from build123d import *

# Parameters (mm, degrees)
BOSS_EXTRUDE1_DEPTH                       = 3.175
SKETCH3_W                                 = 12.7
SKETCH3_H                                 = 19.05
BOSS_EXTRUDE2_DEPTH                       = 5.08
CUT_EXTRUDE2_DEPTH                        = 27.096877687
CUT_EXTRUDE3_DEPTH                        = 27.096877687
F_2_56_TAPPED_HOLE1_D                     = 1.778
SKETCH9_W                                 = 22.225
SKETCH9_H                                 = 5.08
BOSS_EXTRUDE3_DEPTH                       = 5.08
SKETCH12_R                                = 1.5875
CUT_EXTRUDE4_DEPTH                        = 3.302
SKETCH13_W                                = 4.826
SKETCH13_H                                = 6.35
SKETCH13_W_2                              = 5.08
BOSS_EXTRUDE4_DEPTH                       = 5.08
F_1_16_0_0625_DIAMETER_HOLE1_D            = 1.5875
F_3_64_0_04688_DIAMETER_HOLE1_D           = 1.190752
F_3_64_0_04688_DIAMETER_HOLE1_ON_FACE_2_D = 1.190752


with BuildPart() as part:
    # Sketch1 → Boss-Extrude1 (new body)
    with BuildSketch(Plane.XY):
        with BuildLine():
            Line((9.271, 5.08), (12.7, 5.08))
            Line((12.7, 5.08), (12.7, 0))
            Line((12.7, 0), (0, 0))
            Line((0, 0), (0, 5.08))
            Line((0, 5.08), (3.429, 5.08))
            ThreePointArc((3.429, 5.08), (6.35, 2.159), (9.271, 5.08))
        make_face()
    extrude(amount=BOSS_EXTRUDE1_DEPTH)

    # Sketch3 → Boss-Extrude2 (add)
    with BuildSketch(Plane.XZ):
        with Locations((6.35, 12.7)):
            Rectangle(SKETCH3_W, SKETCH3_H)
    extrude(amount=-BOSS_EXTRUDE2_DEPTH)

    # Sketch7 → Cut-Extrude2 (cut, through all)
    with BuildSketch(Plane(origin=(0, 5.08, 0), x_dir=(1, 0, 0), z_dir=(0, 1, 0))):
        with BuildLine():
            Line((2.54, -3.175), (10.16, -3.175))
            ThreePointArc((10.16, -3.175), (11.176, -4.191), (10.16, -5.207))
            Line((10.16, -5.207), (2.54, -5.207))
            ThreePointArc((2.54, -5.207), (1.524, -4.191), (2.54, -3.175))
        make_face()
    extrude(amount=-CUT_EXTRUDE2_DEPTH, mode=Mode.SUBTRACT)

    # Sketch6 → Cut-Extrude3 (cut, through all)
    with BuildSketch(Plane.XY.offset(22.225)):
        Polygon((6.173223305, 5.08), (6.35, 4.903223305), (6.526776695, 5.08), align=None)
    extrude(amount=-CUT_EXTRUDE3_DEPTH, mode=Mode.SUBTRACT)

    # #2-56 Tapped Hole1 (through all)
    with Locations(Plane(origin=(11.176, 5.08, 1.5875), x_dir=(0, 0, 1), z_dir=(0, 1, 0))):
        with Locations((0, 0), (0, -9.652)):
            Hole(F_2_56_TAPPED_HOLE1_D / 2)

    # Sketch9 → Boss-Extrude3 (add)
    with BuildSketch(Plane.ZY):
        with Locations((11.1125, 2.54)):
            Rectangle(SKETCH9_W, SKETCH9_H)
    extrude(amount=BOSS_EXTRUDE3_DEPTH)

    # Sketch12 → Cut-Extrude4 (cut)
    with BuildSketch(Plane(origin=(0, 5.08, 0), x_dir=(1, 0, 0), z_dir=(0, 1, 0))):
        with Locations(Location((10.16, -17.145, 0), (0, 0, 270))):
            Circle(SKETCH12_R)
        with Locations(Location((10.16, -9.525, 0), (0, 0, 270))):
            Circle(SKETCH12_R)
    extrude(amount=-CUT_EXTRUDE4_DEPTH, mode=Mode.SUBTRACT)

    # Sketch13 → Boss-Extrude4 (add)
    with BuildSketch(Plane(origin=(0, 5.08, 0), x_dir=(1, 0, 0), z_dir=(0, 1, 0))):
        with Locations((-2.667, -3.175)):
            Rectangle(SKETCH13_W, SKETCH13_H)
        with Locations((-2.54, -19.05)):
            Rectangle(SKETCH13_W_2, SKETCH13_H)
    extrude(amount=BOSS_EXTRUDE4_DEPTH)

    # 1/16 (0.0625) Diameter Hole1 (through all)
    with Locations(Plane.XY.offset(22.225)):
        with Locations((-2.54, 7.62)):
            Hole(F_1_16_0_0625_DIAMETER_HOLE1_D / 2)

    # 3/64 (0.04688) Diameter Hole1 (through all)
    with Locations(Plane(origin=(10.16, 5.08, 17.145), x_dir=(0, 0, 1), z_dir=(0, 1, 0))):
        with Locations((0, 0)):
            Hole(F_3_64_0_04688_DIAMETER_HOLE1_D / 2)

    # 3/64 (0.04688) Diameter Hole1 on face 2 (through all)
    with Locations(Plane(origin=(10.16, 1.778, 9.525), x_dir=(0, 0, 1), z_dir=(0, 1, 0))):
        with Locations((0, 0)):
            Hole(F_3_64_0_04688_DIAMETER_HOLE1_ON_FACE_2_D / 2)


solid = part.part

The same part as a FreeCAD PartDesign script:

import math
import FreeCAD as App
import Part
import Sketcher

V = App.Vector
Q = App.Units.Quantity

doc = App.newDocument("Part")
params = doc.addObject("Spreadsheet::Sheet", "Params")
for row, (alias, value) in enumerate([
    ("sketch1_width", "0.5 in"),
    ("sketch1_height", "0.2 in"),
    ("sketch1_radius", "0.115 in"),
    ("pad1_length", "0.125 in"),
    ("sketch2_width", "0.5 in"),
    ("sketch2_height", "0.75 in"),
    ("pad2_length", "0.2 in"),
    ("sketch3_radius", "0.04 in"),
    ("sketch3_width", "0.3 in"),
    ("sketch5_diameter", "0.07 in"),
    ("hole_diameter", "0.07 in"),
    ("sketch6_width", "0.2 in"),
    ("sketch6_height", "0.875 in"),
    ("pad3_length", "0.2 in"),
    ("sketch7_diameter", "0.125 in"),
    ("pocket3_length", "0.13 in"),
    ("sketch8_width", "0.2 in"),
    ("sketch8_width2", "0.19 in"),
    ("sketch8_height", "0.25 in"),
    ("pad4_length", "0.2 in"),
    ("sketch9_diameter", "0.0625 in"),
    ("hole2_diameter", "0.0625 in"),
    ("hole3_diameter", "1.190752 mm"),
    ("hole4_diameter", "1.190752 mm"),
], start=1):
    params.set(f"A{row}", alias)
    params.set(f"B{row}", "=" + value)
    params.setAlias(f"B{row}", alias)

body = doc.addObject("PartDesign::Body", "Body")

# Sketch on XY plane
sketch1 = body.newObject("Sketcher::SketchObject", "Sketch")
sketch1.AttachmentSupport = (doc.getObject("XY_Plane"), [""])
sketch1.MapMode = "FlatFace"
sketch1.addGeometry(Part.LineSegment(V(12.7, 5.1, 0), V(9.3, 5.1, 0)), False)
sketch1.addGeometry(Part.ArcOfCircle(Part.Circle(V(6.3, 5.1, 0), V(0, 0, 1), 2.9), math.radians(180), math.radians(360)), False)
sketch1.addGeometry(Part.LineSegment(V(3.4, 5.1, 0), V(0, 5.1, 0)), False)
sketch1.addGeometry(Part.LineSegment(V(0, 5.1, 0), V(0, 0, 0)), False)
sketch1.addGeometry(Part.LineSegment(V(0, 0, 0), V(12.7, 0, 0)), False)
sketch1.addGeometry(Part.LineSegment(V(12.7, 0, 0), V(12.7, 5.1, 0)), False)
sketch1.addConstraint(Sketcher.Constraint("Coincident", 0, 2, 1, 2))
sketch1.addConstraint(Sketcher.Constraint("Coincident", 1, 1, 2, 1))
sketch1.addConstraint(Sketcher.Constraint("Coincident", 2, 2, 3, 1))
sketch1.addConstraint(Sketcher.Constraint("Coincident", 3, 2, 4, 1))
sketch1.addConstraint(Sketcher.Constraint("Coincident", 4, 2, 5, 1))
sketch1.addConstraint(Sketcher.Constraint("Coincident", 5, 2, 0, 1))
sketch1.addConstraint(Sketcher.Constraint("Horizontal", 0))
sketch1.addConstraint(Sketcher.Constraint("Horizontal", 2))
sketch1.addConstraint(Sketcher.Constraint("Vertical", 3))
sketch1.addConstraint(Sketcher.Constraint("Horizontal", 4))
sketch1.addConstraint(Sketcher.Constraint("Vertical", 5))
sketch1.addConstraint(Sketcher.Constraint("Coincident", 3, 2, -1, 1))
sketch1.addConstraint(Sketcher.Constraint("Horizontal", 1, 3, 0, 2))
sketch1.addConstraint(Sketcher.Constraint("Horizontal", 0, 2, 1, 1))
sketch1.addConstraint(Sketcher.Constraint("Equal", 0, 2))
sketch1.addConstraint(Sketcher.Constraint("DistanceX", 4, 1, 4, 2, Q("0.5 in")))
sketch1.addConstraint(Sketcher.Constraint("DistanceY", 3, 2, 3, 1, Q("0.2 in")))
sketch1.addConstraint(Sketcher.Constraint("Radius", 1, Q("0.115 in")))
sketch1.setExpression("Constraints[15]", "Params.sketch1_width")
sketch1.setExpression("Constraints[16]", "Params.sketch1_height")
sketch1.setExpression("Constraints[17]", "Params.sketch1_radius")
pad1 = body.newObject("PartDesign::Pad", "Pad")
pad1.Profile = sketch1
pad1.setExpression("Length", "Params.pad1_length")

# Sketch on XZ plane
sketch2 = body.newObject("Sketcher::SketchObject", "Sketch001")
sketch2.AttachmentSupport = (doc.getObject("XZ_Plane"), [""])
sketch2.MapMode = "FlatFace"
sketch2.addGeometry(Part.LineSegment(V(0, 22, 0), V(0, 3, 0)), False)
sketch2.addGeometry(Part.LineSegment(V(0, 3, 0), V(13, 3, 0)), False)
sketch2.addGeometry(Part.LineSegment(V(13, 3, 0), V(13, 22, 0)), False)
sketch2.addGeometry(Part.LineSegment(V(13, 22, 0), V(0, 22, 0)), False)
sketch2.addConstraint(Sketcher.Constraint("Coincident", 0, 2, 1, 1))
sketch2.addConstraint(Sketcher.Constraint("Coincident", 1, 2, 2, 1))
sketch2.addConstraint(Sketcher.Constraint("Coincident", 2, 2, 3, 1))
sketch2.addConstraint(Sketcher.Constraint("Coincident", 3, 2, 0, 1))
sketch2.addConstraint(Sketcher.Constraint("Vertical", 0))
sketch2.addConstraint(Sketcher.Constraint("Horizontal", 1))
sketch2.addConstraint(Sketcher.Constraint("Vertical", 2))
sketch2.addConstraint(Sketcher.Constraint("Horizontal", 3))
sketch2.addConstraint(Sketcher.Constraint("PointOnObject", 0, 2, -2))
sketch2.addConstraint(Sketcher.Constraint("DistanceX", 1, 1, 1, 2, Q("0.5 in")))
sketch2.addConstraint(Sketcher.Constraint("DistanceY", 0, 2, 0, 1, Q("0.75 in")))
sketch2.addConstraint(Sketcher.Constraint("DistanceY", -1, 1, 0, 2, Q("0.125 in")))
sketch2.setExpression("Constraints[9]", "Params.sketch2_width")
sketch2.setExpression("Constraints[10]", "Params.sketch2_height")
pad2 = body.newObject("PartDesign::Pad", "Pad001")
pad2.Profile = sketch2
pad2.setExpression("Length", "Params.pad2_length")
pad2.Reversed = True

# Sketch on XZ plane
sketch3 = body.newObject("Sketcher::SketchObject", "Sketch002")
sketch3.AttachmentSupport = (doc.getObject("XZ_Plane"), [""])
sketch3.MapMode = "FlatFace"
sketch3.AttachmentOffset = App.Placement(V(0, 0, -0.2 * 25.4), App.Rotation())
sketch3.addGeometry(Part.LineSegment(V(10.2, 3.2, 0), V(2.5, 3.2, 0)), False)
sketch3.addGeometry(Part.ArcOfCircle(Part.Circle(V(2.5, 4.2, 0), V(0, 0, 1), 1), math.radians(90), math.radians(270)), False)
sketch3.addGeometry(Part.LineSegment(V(2.5, 5.2, 0), V(10.2, 5.2, 0)), False)
sketch3.addGeometry(Part.ArcOfCircle(Part.Circle(V(10.2, 4.2, 0), V(0, 0, 1), 1), math.radians(-90), math.radians(90)), False)
sketch3.addConstraint(Sketcher.Constraint("Tangent", 0, 2, 1, 2))
sketch3.addConstraint(Sketcher.Constraint("Tangent", 1, 1, 2, 1))
sketch3.addConstraint(Sketcher.Constraint("Tangent", 2, 2, 3, 2))
sketch3.addConstraint(Sketcher.Constraint("Tangent", 3, 1, 0, 1))
sketch3.addConstraint(Sketcher.Constraint("Horizontal", 0))
sketch3.addConstraint(Sketcher.Constraint("Horizontal", 2))
sketch3.addConstraint(Sketcher.Constraint("Radius", 1, Q("0.04 in")))
sketch3.addConstraint(Sketcher.Constraint("DistanceX", 0, 2, 0, 1, Q("0.3 in")))
sketch3.addConstraint(Sketcher.Constraint("DistanceX", -1, 1, 1, 3, Q("0.1 in")))
sketch3.addConstraint(Sketcher.Constraint("DistanceY", -1, 1, 1, 3, Q("0.165 in")))
sketch3.setExpression("Constraints[6]", "Params.sketch3_radius")
sketch3.setExpression("Constraints[7]", "Params.sketch3_width")
pocket1 = body.newObject("PartDesign::Pocket", "Pocket")
pocket1.Profile = sketch3
pocket1.Type = "ThroughAll"
pocket1.Reversed = True

# Sketch on XY plane
sketch4 = body.newObject("Sketcher::SketchObject", "Sketch003")
sketch4.AttachmentSupport = (doc.getObject("XY_Plane"), [""])
sketch4.MapMode = "FlatFace"
sketch4.AttachmentOffset = App.Placement(V(0, 0, 0.875 * 25.4), App.Rotation())
sketch4.addGeometry(Part.LineSegment(V(6.17, 5.08, 0), V(6.35, 4.9, 0)), False)
sketch4.addGeometry(Part.LineSegment(V(6.35, 4.9, 0), V(6.53, 5.08, 0)), False)
sketch4.addGeometry(Part.LineSegment(V(6.53, 5.08, 0), V(6.17, 5.08, 0)), False)
sketch4.addConstraint(Sketcher.Constraint("Coincident", 0, 2, 1, 1))
sketch4.addConstraint(Sketcher.Constraint("Coincident", 1, 2, 2, 1))
sketch4.addConstraint(Sketcher.Constraint("Coincident", 2, 2, 0, 1))
sketch4.addConstraint(Sketcher.Constraint("Horizontal", 2))
sketch4.addConstraint(Sketcher.Constraint("Perpendicular", 0, 1))
sketch4.addConstraint(Sketcher.Constraint("Equal", 0, 1))
sketch4.addConstraint(Sketcher.Constraint("DistanceY", -1, 1, 1, 2, Q("0.2 in")))
sketch4.addConstraint(Sketcher.Constraint("DistanceX", -1, 1, 0, 2, Q("0.25 in")))
sketch4.addConstraint(Sketcher.Constraint("Distance", 0, Q("0.25 mm")))
pocket2 = body.newObject("PartDesign::Pocket", "Pocket001")
pocket2.Profile = sketch4
pocket2.Type = "ThroughAll"

# Sketch on XZ plane
sketch5 = body.newObject("Sketcher::SketchObject", "Sketch004")
sketch5.AttachmentSupport = (doc.getObject("XZ_Plane"), [""])
sketch5.MapMode = "FlatFace"
sketch5.AttachmentOffset = App.Placement(V(0, 0, -0.2 * 25.4), App.Rotation())
sketch5.addGeometry(Part.Circle(V(11.2, 1.6, 0), V(0, 0, 1), 0.9), False)
sketch5.addGeometry(Part.Circle(V(1.5, 1.6, 0), V(0, 0, 1), 0.9), False)
sketch5.addConstraint(Sketcher.Constraint("Equal", 0, 1))
sketch5.addConstraint(Sketcher.Constraint("Horizontal", 0, 3, 1, 3))
sketch5.addConstraint(Sketcher.Constraint("Diameter", 0, Q("0.07 in")))
sketch5.addConstraint(Sketcher.Constraint("DistanceX", -1, 1, 0, 3, Q("0.44 in")))
sketch5.addConstraint(Sketcher.Constraint("DistanceX", -1, 1, 1, 3, Q("0.06 in")))
sketch5.addConstraint(Sketcher.Constraint("DistanceY", -1, 1, 0, 3, Q("0.0625 in")))
sketch5.setExpression("Constraints[2]", "Params.sketch5_diameter")
doc.recompute()
hole = body.newObject("PartDesign::Hole", "Hole")
hole.Profile = sketch5
hole.ThreadType = "None"
hole.setExpression("Diameter", "Params.hole_diameter")
hole.DepthType = "ThroughAll"
hole.Reversed = True

# Sketch on YZ plane
sketch6 = body.newObject("Sketcher::SketchObject", "Sketch005")
sketch6.AttachmentSupport = (doc.getObject("YZ_Plane"), [""])
sketch6.MapMode = "FlatFace"
sketch6.addGeometry(Part.LineSegment(V(5, 0, 0), V(0, 0, 0)), False)
sketch6.addGeometry(Part.LineSegment(V(0, 0, 0), V(0, 22, 0)), False)
sketch6.addGeometry(Part.LineSegment(V(0, 22, 0), V(5, 22, 0)), False)
sketch6.addGeometry(Part.LineSegment(V(5, 22, 0), V(5, 0, 0)), False)
sketch6.addConstraint(Sketcher.Constraint("Coincident", 0, 2, 1, 1))
sketch6.addConstraint(Sketcher.Constraint("Coincident", 1, 2, 2, 1))
sketch6.addConstraint(Sketcher.Constraint("Coincident", 2, 2, 3, 1))
sketch6.addConstraint(Sketcher.Constraint("Coincident", 3, 2, 0, 1))
sketch6.addConstraint(Sketcher.Constraint("Horizontal", 0))
sketch6.addConstraint(Sketcher.Constraint("Vertical", 1))
sketch6.addConstraint(Sketcher.Constraint("Horizontal", 2))
sketch6.addConstraint(Sketcher.Constraint("Vertical", 3))
sketch6.addConstraint(Sketcher.Constraint("Coincident", 0, 2, -1, 1))
sketch6.addConstraint(Sketcher.Constraint("DistanceX", 0, 2, 0, 1, Q("0.2 in")))
sketch6.addConstraint(Sketcher.Constraint("DistanceY", 1, 1, 1, 2, Q("0.875 in")))
sketch6.setExpression("Constraints[9]", "Params.sketch6_width")
sketch6.setExpression("Constraints[10]", "Params.sketch6_height")
pad3 = body.newObject("PartDesign::Pad", "Pad002")
pad3.Profile = sketch6
pad3.setExpression("Length", "Params.pad3_length")
pad3.Reversed = True

# Sketch on XZ plane
sketch7 = body.newObject("Sketcher::SketchObject", "Sketch006")
sketch7.AttachmentSupport = (doc.getObject("XZ_Plane"), [""])
sketch7.MapMode = "FlatFace"
sketch7.AttachmentOffset = App.Placement(V(0, 0, -0.2 * 25.4), App.Rotation())
sketch7.addGeometry(Part.Circle(V(10.2, 17.1, 0), V(0, 0, 1), 1.6), False)
sketch7.addGeometry(Part.Circle(V(10.2, 9.5, 0), V(0, 0, 1), 1.6), False)
sketch7.addConstraint(Sketcher.Constraint("Equal", 0, 1))
sketch7.addConstraint(Sketcher.Constraint("Vertical", 0, 3, 1, 3))
sketch7.addConstraint(Sketcher.Constraint("Diameter", 0, Q("0.125 in")))
sketch7.addConstraint(Sketcher.Constraint("DistanceX", -1, 1, 0, 3, Q("0.4 in")))
sketch7.addConstraint(Sketcher.Constraint("DistanceY", 1, 3, 0, 3, Q("0.3 in")))
sketch7.addConstraint(Sketcher.Constraint("DistanceY", -1, 1, 0, 3, Q("0.675 in")))
sketch7.setExpression("Constraints[2]", "Params.sketch7_diameter")
pocket3 = body.newObject("PartDesign::Pocket", "Pocket002")
pocket3.Profile = sketch7
pocket3.setExpression("Length", "Params.pocket3_length")
pocket3.Reversed = True

# Sketch on XZ plane
sketch8 = body.newObject("Sketcher::SketchObject", "Sketch007")
sketch8.AttachmentSupport = (doc.getObject("XZ_Plane"), [""])
sketch8.MapMode = "FlatFace"
sketch8.AttachmentOffset = App.Placement(V(0, 0, -0.2 * 25.4), App.Rotation())
sketch8.addGeometry(Part.LineSegment(V(-5.1, 0, 0), V(-5.1, 6.3, 0)), False)
sketch8.addGeometry(Part.LineSegment(V(-5.1, 6.3, 0), V(-0.3, 6.3, 0)), False)
sketch8.addGeometry(Part.LineSegment(V(-0.3, 6.3, 0), V(-0.3, 0, 0)), False)
sketch8.addGeometry(Part.LineSegment(V(-0.3, 0, 0), V(-5.1, 0, 0)), False)
sketch8.addGeometry(Part.LineSegment(V(-5.1, 15.9, 0), V(-5.1, 22.2, 0)), False)
sketch8.addGeometry(Part.LineSegment(V(-5.1, 22.2, 0), V(0, 22.2, 0)), False)
sketch8.addGeometry(Part.LineSegment(V(0, 22.2, 0), V(0, 15.9, 0)), False)
sketch8.addGeometry(Part.LineSegment(V(0, 15.9, 0), V(-5.1, 15.9, 0)), False)
sketch8.addConstraint(Sketcher.Constraint("Coincident", 0, 2, 1, 1))
sketch8.addConstraint(Sketcher.Constraint("Coincident", 1, 2, 2, 1))
sketch8.addConstraint(Sketcher.Constraint("Coincident", 2, 2, 3, 1))
sketch8.addConstraint(Sketcher.Constraint("Coincident", 3, 2, 0, 1))
sketch8.addConstraint(Sketcher.Constraint("Coincident", 4, 2, 5, 1))
sketch8.addConstraint(Sketcher.Constraint("Coincident", 5, 2, 6, 1))
sketch8.addConstraint(Sketcher.Constraint("Coincident", 6, 2, 7, 1))
sketch8.addConstraint(Sketcher.Constraint("Coincident", 7, 2, 4, 1))
sketch8.addConstraint(Sketcher.Constraint("Vertical", 0))
sketch8.addConstraint(Sketcher.Constraint("Horizontal", 1))
sketch8.addConstraint(Sketcher.Constraint("Vertical", 2))
sketch8.addConstraint(Sketcher.Constraint("Horizontal", 3))
sketch8.addConstraint(Sketcher.Constraint("Vertical", 4))
sketch8.addConstraint(Sketcher.Constraint("Horizontal", 5))
sketch8.addConstraint(Sketcher.Constraint("Vertical", 6))
sketch8.addConstraint(Sketcher.Constraint("Horizontal", 7))
sketch8.addConstraint(Sketcher.Constraint("PointOnObject", 2, 2, -1))
sketch8.addConstraint(Sketcher.Constraint("PointOnObject", 5, 2, -2))
sketch8.addConstraint(Sketcher.Constraint("Vertical", 3, 2, 4, 2))
sketch8.addConstraint(Sketcher.Constraint("Equal", 2, 4))
sketch8.addConstraint(Sketcher.Constraint("DistanceX", 5, 1, 5, 2, Q("0.2 in")))
sketch8.addConstraint(Sketcher.Constraint("DistanceX", 1, 1, 1, 2, Q("0.19 in")))
sketch8.addConstraint(Sketcher.Constraint("DistanceY", 0, 1, 0, 2, Q("0.25 in")))
sketch8.addConstraint(Sketcher.Constraint("DistanceY", -1, 1, 4, 2, Q("0.875 in")))
sketch8.setExpression("Constraints[20]", "Params.sketch8_width")
sketch8.setExpression("Constraints[21]", "Params.sketch8_width2")
sketch8.setExpression("Constraints[22]", "Params.sketch8_height")
pad4 = body.newObject("PartDesign::Pad", "Pad003")
pad4.Profile = sketch8
pad4.setExpression("Length", "Params.pad4_length")
pad4.Reversed = True

# Sketch on XY plane
sketch9 = body.newObject("Sketcher::SketchObject", "Sketch008")
sketch9.AttachmentSupport = (doc.getObject("XY_Plane"), [""])
sketch9.MapMode = "FlatFace"
sketch9.AttachmentOffset = App.Placement(V(0, 0, 0.875 * 25.4), App.Rotation())
sketch9.addGeometry(Part.Circle(V(-2.5, 7.6, 0), V(0, 0, 1), 0.8), False)
sketch9.addConstraint(Sketcher.Constraint("Diameter", 0, Q("0.0625 in")))
sketch9.addConstraint(Sketcher.Constraint("DistanceX", 0, 3, -1, 1, Q("0.1 in")))
sketch9.addConstraint(Sketcher.Constraint("DistanceY", -1, 1, 0, 3, Q("0.3 in")))
sketch9.setExpression("Constraints[0]", "Params.sketch9_diameter")
doc.recompute()
hole2 = body.newObject("PartDesign::Hole", "Hole001")
hole2.Profile = sketch9
hole2.ThreadType = "None"
hole2.setExpression("Diameter", "Params.hole2_diameter")
hole2.DepthType = "ThroughAll"

# Sketch on XZ plane
sketch10 = body.newObject("Sketcher::SketchObject", "Sketch009")
sketch10.AttachmentSupport = (doc.getObject("XZ_Plane"), [""])
sketch10.MapMode = "FlatFace"
sketch10.AttachmentOffset = App.Placement(V(0, 0, -0.2 * 25.4), App.Rotation())
sketch10.addGeometry(Part.Circle(V(10.2, 17.1, 0), V(0, 0, 1), 0.6), False)
sketch10.addConstraint(Sketcher.Constraint("DistanceX", -1, 1, 0, 3, Q("0.4 in")))
sketch10.addConstraint(Sketcher.Constraint("DistanceY", -1, 1, 0, 3, Q("0.675 in")))
sketch10.addConstraint(Sketcher.Constraint("Diameter", 0, Q("1.190752 mm")))
doc.recompute()
hole3 = body.newObject("PartDesign::Hole", "Hole002")
hole3.Profile = sketch10
hole3.ThreadType = "None"
hole3.setExpression("Diameter", "Params.hole3_diameter")
hole3.DepthType = "ThroughAll"
hole3.Reversed = True

# Sketch on XZ plane
sketch11 = body.newObject("Sketcher::SketchObject", "Sketch010")
sketch11.AttachmentSupport = (doc.getObject("XZ_Plane"), [""])
sketch11.MapMode = "FlatFace"
sketch11.AttachmentOffset = App.Placement(V(0, 0, -0.07 * 25.4), App.Rotation())
sketch11.addGeometry(Part.Circle(V(10.2, 9.5, 0), V(0, 0, 1), 0.6), False)
sketch11.addConstraint(Sketcher.Constraint("DistanceX", -1, 1, 0, 3, Q("0.4 in")))
sketch11.addConstraint(Sketcher.Constraint("DistanceY", -1, 1, 0, 3, Q("0.375 in")))
sketch11.addConstraint(Sketcher.Constraint("Diameter", 0, Q("1.190752 mm")))
doc.recompute()
hole4 = body.newObject("PartDesign::Hole", "Hole003")
hole4.Profile = sketch11
hole4.ThreadType = "None"
hole4.setExpression("Diameter", "Params.hole4_diameter")
hole4.DepthType = "ThroughAll"
hole4.Reversed = True

doc.recompute()
